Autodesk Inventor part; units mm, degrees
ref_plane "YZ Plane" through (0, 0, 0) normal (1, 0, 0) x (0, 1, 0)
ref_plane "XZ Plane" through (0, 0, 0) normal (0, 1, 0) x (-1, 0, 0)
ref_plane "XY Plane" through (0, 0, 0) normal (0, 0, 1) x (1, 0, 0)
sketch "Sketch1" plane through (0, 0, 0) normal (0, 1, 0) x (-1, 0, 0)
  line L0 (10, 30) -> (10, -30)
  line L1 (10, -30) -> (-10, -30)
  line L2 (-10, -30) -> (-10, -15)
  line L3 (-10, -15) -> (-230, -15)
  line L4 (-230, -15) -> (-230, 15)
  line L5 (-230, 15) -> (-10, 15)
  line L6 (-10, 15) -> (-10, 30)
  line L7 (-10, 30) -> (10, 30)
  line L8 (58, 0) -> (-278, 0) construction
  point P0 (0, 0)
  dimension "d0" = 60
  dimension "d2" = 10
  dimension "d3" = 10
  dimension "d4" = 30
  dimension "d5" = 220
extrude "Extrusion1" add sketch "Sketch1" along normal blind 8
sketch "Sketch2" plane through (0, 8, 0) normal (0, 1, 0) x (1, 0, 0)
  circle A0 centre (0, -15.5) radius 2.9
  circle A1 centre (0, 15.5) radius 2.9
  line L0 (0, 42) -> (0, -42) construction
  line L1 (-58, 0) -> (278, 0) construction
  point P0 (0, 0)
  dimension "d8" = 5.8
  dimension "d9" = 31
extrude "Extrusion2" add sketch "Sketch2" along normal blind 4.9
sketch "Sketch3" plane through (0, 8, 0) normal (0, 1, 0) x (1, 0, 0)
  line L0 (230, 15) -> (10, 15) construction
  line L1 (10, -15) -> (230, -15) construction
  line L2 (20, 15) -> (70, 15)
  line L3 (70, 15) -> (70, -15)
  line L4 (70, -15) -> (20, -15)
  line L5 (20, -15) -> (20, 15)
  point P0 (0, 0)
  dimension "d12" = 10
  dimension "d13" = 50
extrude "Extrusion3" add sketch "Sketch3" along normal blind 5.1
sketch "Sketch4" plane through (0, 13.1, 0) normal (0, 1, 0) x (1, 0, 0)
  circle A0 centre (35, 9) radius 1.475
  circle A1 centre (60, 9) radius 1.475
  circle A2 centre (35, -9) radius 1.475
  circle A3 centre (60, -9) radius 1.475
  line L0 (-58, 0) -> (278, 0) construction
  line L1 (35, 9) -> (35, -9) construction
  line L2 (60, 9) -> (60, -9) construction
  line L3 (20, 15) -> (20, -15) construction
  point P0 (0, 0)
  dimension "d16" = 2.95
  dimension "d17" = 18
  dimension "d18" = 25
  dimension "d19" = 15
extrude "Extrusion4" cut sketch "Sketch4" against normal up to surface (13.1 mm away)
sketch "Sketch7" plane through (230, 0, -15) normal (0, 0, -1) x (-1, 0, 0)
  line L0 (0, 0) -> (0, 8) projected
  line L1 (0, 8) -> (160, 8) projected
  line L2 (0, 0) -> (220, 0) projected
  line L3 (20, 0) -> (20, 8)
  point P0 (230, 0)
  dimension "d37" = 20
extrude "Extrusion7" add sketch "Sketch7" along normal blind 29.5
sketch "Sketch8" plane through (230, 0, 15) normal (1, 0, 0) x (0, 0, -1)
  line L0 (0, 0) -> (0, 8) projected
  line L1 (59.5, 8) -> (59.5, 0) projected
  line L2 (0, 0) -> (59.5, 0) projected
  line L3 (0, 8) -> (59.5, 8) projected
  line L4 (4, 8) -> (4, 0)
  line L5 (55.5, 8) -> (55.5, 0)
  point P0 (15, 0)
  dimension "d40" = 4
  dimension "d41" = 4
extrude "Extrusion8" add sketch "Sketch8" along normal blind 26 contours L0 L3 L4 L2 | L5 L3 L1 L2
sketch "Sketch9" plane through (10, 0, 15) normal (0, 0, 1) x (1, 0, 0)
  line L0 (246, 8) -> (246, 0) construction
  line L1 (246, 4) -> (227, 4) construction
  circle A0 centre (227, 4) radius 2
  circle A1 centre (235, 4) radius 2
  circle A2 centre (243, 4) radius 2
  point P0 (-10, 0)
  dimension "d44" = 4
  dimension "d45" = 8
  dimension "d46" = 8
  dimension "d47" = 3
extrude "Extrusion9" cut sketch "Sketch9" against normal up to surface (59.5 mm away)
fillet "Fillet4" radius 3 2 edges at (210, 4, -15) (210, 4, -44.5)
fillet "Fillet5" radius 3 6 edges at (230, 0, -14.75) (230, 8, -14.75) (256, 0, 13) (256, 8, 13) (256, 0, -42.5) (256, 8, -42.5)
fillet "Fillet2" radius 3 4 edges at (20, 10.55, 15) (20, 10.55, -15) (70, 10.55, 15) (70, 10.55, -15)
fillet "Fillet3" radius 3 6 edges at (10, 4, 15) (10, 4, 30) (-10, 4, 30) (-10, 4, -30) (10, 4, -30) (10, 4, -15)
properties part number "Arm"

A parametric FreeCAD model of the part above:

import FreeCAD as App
import Part
import Sketcher
Q = App.Units.Quantity


def edges_at(feature, points):
    """Names of the edges that pass closest to the given points."""
    edges = feature.Shape.Edges
    near = lambda p: min(range(len(edges)), key=lambda i: edges[i].distToShape(Part.Vertex(*p))[0])
    return sorted({f"Edge{near(p) + 1}" for p in points})

doc = App.newDocument("Part")
params = doc.addObject("Spreadsheet::Sheet", "Params")
for row, (alias, value) in enumerate([
    ("sketch1_width", "220 mm"),
    ("sketch1_height", "60 mm"),
    ("sketch1_height2", "30 mm"),
    ("pad1_length", "8 mm"),
    ("sketch2_diameter", "5.8 mm"),
    ("pad2_length", "4.9 mm"),
    ("sketch3_width", "50 mm"),
    ("sketch3_height", "30 mm"),
    ("pad3_length", "5.1 mm"),
    ("sketch4_diameter", "2.95 mm"),
    ("pocket1_length", "13.1 mm"),
    ("sketch5_width", "20 mm"),
    ("sketch5_height", "8 mm"),
    ("pad4_length", "29.5 mm"),
    ("sketch6_height", "4 mm"),
    ("sketch6_width", "8 mm"),
    ("pad5_length", "26 mm"),
    ("sketch7_diameter", "4 mm"),
    ("pocket2_length", "59.5 mm"),
    ("fillet_radius", "3 mm"),
    ("fillet2_radius", "3 mm"),
    ("fillet3_radius", "3 mm"),
    ("fillet4_radius", "3 mm"),
], start=1):
    params.set(f"A{row}", alias)
    params.set(f"B{row}", "=" + value)
    params.setAlias(f"B{row}", alias)

body = doc.addObject("PartDesign::Body", "Body")

# Sketch on XZ plane
sketch1 = body.newObject("Sketcher::SketchObject", "Sketch")
sketch1.AttachmentSupport = (doc.getObject("XZ_Plane"), [""])
sketch1.MapMode = "FlatFace"
sketch1.addGeometry([
    Part.LineSegment(App.Vector(-10, -30, 0), App.Vector(-10, 30, 0)),  # 0
    Part.LineSegment(App.Vector(-10, 30, 0), App.Vector(10, 30, 0)),  # 1
    Part.LineSegment(App.Vector(10, 30, 0), App.Vector(10, 15, 0)),  # 2
    Part.LineSegment(App.Vector(10, 15, 0), App.Vector(230, 15, 0)),  # 3
    Part.LineSegment(App.Vector(230, 15, 0), App.Vector(230, -15, 0)),  # 4
    Part.LineSegment(App.Vector(230, -15, 0), App.Vector(10, -15, 0)),  # 5
    Part.LineSegment(App.Vector(10, -15, 0), App.Vector(10, -30, 0)),  # 6
    Part.LineSegment(App.Vector(10, -30, 0), App.Vector(-10, -30, 0)),  # 7
], False)
sketch1.addConstraint([
    Sketcher.Constraint("Coincident", 0, 2, 1, 1),
    Sketcher.Constraint("Coincident", 1, 2, 2, 1),
    Sketcher.Constraint("Coincident", 2, 2, 3, 1),
    Sketcher.Constraint("Coincident", 3, 2, 4, 1),
    Sketcher.Constraint("Coincident", 4, 2, 5, 1),
    Sketcher.Constraint("Coincident", 5, 2, 6, 1),
    Sketcher.Constraint("Coincident", 6, 2, 7, 1),
    Sketcher.Constraint("Coincident", 7, 2, 0, 1),
    Sketcher.Constraint("Vertical", 0),
    Sketcher.Constraint("Horizontal", 1),
    Sketcher.Constraint("Vertical", 2),
    Sketcher.Constraint("Horizontal", 3),
    Sketcher.Constraint("Vertical", 4),
    Sketcher.Constraint("Horizontal", 5),
    Sketcher.Constraint("Vertical", 6),
    Sketcher.Constraint("Horizontal", 7),
    Sketcher.Constraint("Symmetric", 0, 2, 6, 2, -1, 1),
    Sketcher.Constraint("Symmetric", 2, 2, 5, 2, -1),
    Sketcher.Constraint("DistanceX", 3, 1, 3, 2, Q("220 mm")),
    Sketcher.Constraint("DistanceY", 0, 1, 0, 2, Q("60 mm")),
    Sketcher.Constraint("DistanceY", 4, 2, 4, 1, Q("30 mm")),
    Sketcher.Constraint("DistanceX", 0, 2, -1, 1, Q("10 mm")),
])
sketch1.setExpression("Constraints[18]", "Params.sketch1_width")
sketch1.setExpression("Constraints[19]", "Params.sketch1_height")
sketch1.setExpression("Constraints[20]", "Params.sketch1_height2")
pad1 = body.newObject("PartDesign::Pad", "Pad")
pad1.Profile = sketch1
pad1.setExpression("Length", "Params.pad1_length")
pad1.Reversed = True

# Sketch on XZ plane
sketch2 = body.newObject("Sketcher::SketchObject", "Sketch001")
sketch2.AttachmentSupport = (doc.getObject("XZ_Plane"), [""])
sketch2.MapMode = "FlatFace"
sketch2.AttachmentOffset = App.Placement(App.Vector(0, 0, -8), App.Rotation())
sketch2.addGeometry([
    Part.Circle(App.Vector(0, 15.5, 0), App.Vector(0, 0, 1), 2.9),
    Part.Circle(App.Vector(0, -15.5, 0), App.Vector(0, 0, 1), 2.9),
], False)
sketch2.addConstraint([
    Sketcher.Constraint("Equal", 0, 1),
    Sketcher.Constraint("Symmetric", 0, 3, 1, 3, -1, 1),
    Sketcher.Constraint("PointOnObject", 0, 3, -2),
    Sketcher.Constraint("Diameter", 0, Q("5.8 mm")),
    Sketcher.Constraint("DistanceY", 1, 3, 0, 3, Q("31 mm")),
])
sketch2.setExpression("Constraints[3]", "Params.sketch2_diameter")
pad2 = body.newObject("PartDesign::Pad", "Pad001")
pad2.Profile = sketch2
pad2.setExpression("Length", "Params.pad2_length")
pad2.Reversed = True

# Sketch on XZ plane
sketch3 = body.newObject("Sketcher::SketchObject", "Sketch002")
sketch3.AttachmentSupport = (doc.getObject("XZ_Plane"), [""])
sketch3.MapMode = "FlatFace"
sketch3.AttachmentOffset = App.Placement(App.Vector(0, 0, -8), App.Rotation())
sketch3.addGeometry([
    Part.LineSegment(App.Vector(70, -15, 0), App.Vector(20, -15, 0)),
    Part.LineSegment(App.Vector(20, -15, 0), App.Vector(20, 15, 0)),
    Part.LineSegment(App.Vector(20, 15, 0), App.Vector(70, 15, 0)),
    Part.LineSegment(App.Vector(70, 15, 0), App.Vector(70, -15, 0)),
], False)
sketch3.addConstraint([
    Sketcher.Constraint("Coincident", 0, 2, 1, 1),
    Sketcher.Constraint("Coincident", 1, 2, 2, 1),
    Sketcher.Constraint("Coincident", 2, 2, 3, 1),
    Sketcher.Constraint("Coincident", 3, 2, 0, 1),
    Sketcher.Constraint("Horizontal", 0),
    Sketcher.Constraint("Vertical", 1),
    Sketcher.Constraint("Horizontal", 2),
    Sketcher.Constraint("Vertical", 3),
    Sketcher.Constraint("DistanceX", 0, 2, 0, 1, Q("50 mm")),
    Sketcher.Constraint("DistanceY", 1, 1, 1, 2, Q("30 mm")),
    Sketcher.Constraint("DistanceX", -1, 1, 0, 2, Q("20 mm")),
    Sketcher.Constraint("DistanceY", 0, 2, -1, 1, Q("15 mm")),
])
sketch3.setExpression("Constraints[8]", "Params.sketch3_width")
sketch3.setExpression("Constraints[9]", "Params.sketch3_height")
pad3 = body.newObject("PartDesign::Pad", "Pad002")
pad3.Profile = sketch3
pad3.setExpression("Length", "Params.pad3_length")
pad3.Reversed = True

# Sketch on XZ plane
sketch4 = body.newObject("Sketcher::SketchObject", "Sketch003")
sketch4.AttachmentSupport = (doc.getObject("XZ_Plane"), [""])
sketch4.MapMode = "FlatFace"
sketch4.AttachmentOffset = App.Placement(App.Vector(0, 0, -13.1), App.Rotation())
sketch4.addGeometry([
    Part.Circle(App.Vector(35, -9, 0), App.Vector(0, 0, 1), 1.475),
    Part.Circle(App.Vector(60, -9, 0), App.Vector(0, 0, 1), 1.475),
    Part.Circle(App.Vector(35, 9, 0), App.Vector(0, 0, 1), 1.475),
    Part.Circle(App.Vector(60, 9, 0), App.Vector(0, 0, 1), 1.475),
], False)
sketch4.addConstraint([
    Sketcher.Constraint("Equal", 0, 1),
    Sketcher.Constraint("Equal", 1, 2),
    Sketcher.Constraint("Equal", 2, 3),
    Sketcher.Constraint("Symmetric", 0, 3, 2, 3, -1),
    Sketcher.Constraint("Symmetric", 1, 3, 3, 3, -1),
    Sketcher.Constraint("Horizontal", 0, 3, 1, 3),
    Sketcher.Constraint("Diameter", 0, Q("2.95 mm")),
    Sketcher.Constraint("DistanceX", 0, 3, 1, 3, Q("25 mm")),
    Sketcher.Constraint("DistanceY", 0, 3, 2, 3, Q("18 mm")),
    Sketcher.Constraint("DistanceX", -1, 1, 0, 3, Q("35 mm")),
])
sketch4.setExpression("Constraints[6]", "Params.sketch4_diameter")
pocket1 = body.newObject("PartDesign::Pocket", "Pocket")
pocket1.Profile = sketch4
pocket1.setExpression("Length", "Params.pocket1_length")
pocket1.Reversed = True

# Sketch on XY plane
sketch5 = body.newObject("Sketcher::SketchObject", "Sketch004")
sketch5.AttachmentSupport = (doc.getObject("XY_Plane"), [""])
sketch5.MapMode = "FlatFace"
sketch5.AttachmentOffset = App.Placement(App.Vector(0, 0, -15), App.Rotation())
sketch5.addGeometry([
    Part.LineSegment(App.Vector(230, 8, 0), App.Vector(230, 0, 0)),
    Part.LineSegment(App.Vector(230, 0, 0), App.Vector(210, 0, 0)),
    Part.LineSegment(App.Vector(210, 0, 0), App.Vector(210, 8, 0)),
    Part.LineSegment(App.Vector(210, 8, 0), App.Vector(230, 8, 0)),
], False)
sketch5.addConstraint([
    Sketcher.Constraint("Coincident", 0, 2, 1, 1),
    Sketcher.Constraint("Coincident", 1, 2, 2, 1),
    Sketcher.Constraint("Coincident", 2, 2, 3, 1),
    Sketcher.Constraint("Coincident", 3, 2, 0, 1),
    Sketcher.Constraint("Vertical", 0),
    Sketcher.Constraint("Horizontal", 1),
    Sketcher.Constraint("Vertical", 2),
    Sketcher.Constraint("Horizontal", 3),
    Sketcher.Constraint("PointOnObject", 0, 2, -1),
    Sketcher.Constraint("DistanceX", 1, 2, 1, 1, Q("20 mm")),
    Sketcher.Constraint("DistanceY", 0, 2, 0, 1, Q("8 mm")),
    Sketcher.Constraint("DistanceX", -1, 1, 0, 2, Q("230 mm")),
])
sketch5.setExpression("Constraints[9]", "Params.sketch5_width")
sketch5.setExpression("Constraints[10]", "Params.sketch5_height")
pad4 = body.newObject("PartDesign::Pad", "Pad003")
pad4.Profile = sketch5
pad4.setExpression("Length", "Params.pad4_length")
pad4.Reversed = True

# Sketch on YZ plane
sketch6 = body.newObject("Sketcher::SketchObject", "Sketch005")
sketch6.AttachmentSupport = (doc.getObject("YZ_Plane"), [""])
sketch6.MapMode = "FlatFace"
sketch6.AttachmentOffset = App.Placement(App.Vector(0, 0, 230), App.Rotation())
sketch6.addGeometry([
    Part.LineSegment(App.Vector(8, 15, 0), App.Vector(0, 15, 0)),  # 0
    Part.LineSegment(App.Vector(0, 15, 0), App.Vector(0, 11, 0)),  # 1
    Part.LineSegment(App.Vector(0, 11, 0), App.Vector(8, 11, 0)),  # 2
    Part.LineSegment(App.Vector(8, 11, 0), App.Vector(8, 15, 0)),  # 3
    Part.LineSegment(App.Vector(8, -40.5, 0), App.Vector(0, -40.5, 0)),  # 4
    Part.LineSegment(App.Vector(0, -40.5, 0), App.Vector(0, -44.5, 0)),  # 5
    Part.LineSegment(App.Vector(0, -44.5, 0), App.Vector(8, -44.5, 0)),  # 6
    Part.LineSegment(App.Vector(8, -44.5, 0), App.Vector(8, -40.5, 0)),  # 7
], False)
sketch6.addConstraint([
    Sketcher.Constraint("Coincident", 0, 2, 1, 1),
    Sketcher.Constraint("Coincident", 1, 2, 2, 1),
    Sketcher.Constraint("Coincident", 2, 2, 3, 1),
    Sketcher.Constraint("Coincident", 3, 2, 0, 1),
    Sketcher.Constraint("Coincident", 4, 2, 5, 1),
    Sketcher.Constraint("Coincident", 5, 2, 6, 1),
    Sketcher.Constraint("Coincident", 6, 2, 7, 1),
    Sketcher.Constraint("Coincident", 7, 2, 4, 1),
    Sketcher.Constraint("Horizontal", 0),
    Sketcher.Constraint("Vertical", 1),
    Sketcher.Constraint("Horizontal", 2),
    Sketcher.Constraint("Vertical", 3),
    Sketcher.Constraint("Horizontal", 4),
    Sketcher.Constraint("Vertical", 5),
    Sketcher.Constraint("Horizontal", 6),
    Sketcher.Constraint("Vertical", 7),
    Sketcher.Constraint("PointOnObject", 0, 2, -2),
    Sketcher.Constraint("PointOnObject", 4, 2, -2),
    Sketcher.Constraint("Vertical", 3, 2, 6, 2),
    Sketcher.Constraint("Equal", 3, 5),
    Sketcher.Constraint("DistanceY", 1, 2, 1, 1, Q("4 mm")),
    Sketcher.Constraint("DistanceX", 0, 2, 0, 1, Q("8 mm")),
    Sketcher.Constraint("DistanceY", -1, 1, 0, 2, Q("15 mm")),
    Sketcher.Constraint("DistanceY", 4, 2, -1, 1, Q("40.5 mm")),
])
sketch6.setExpression("Constraints[20]", "Params.sketch6_height")
sketch6.setExpression("Constraints[21]", "Params.sketch6_width")
pad5 = body.newObject("PartDesign::Pad", "Pad004")
pad5.Profile = sketch6
pad5.setExpression("Length", "Params.pad5_length")

# Sketch on XY plane
sketch7 = body.newObject("Sketcher::SketchObject", "Sketch006")
sketch7.AttachmentSupport = (doc.getObject("XY_Plane"), [""])
sketch7.MapMode = "FlatFace"
sketch7.AttachmentOffset = App.Placement(App.Vector(0, 0, 15), App.Rotation())
sketch7.addGeometry([
    Part.Circle(App.Vector(237, 4, 0), App.Vector(0, 0, 1), 2),
    Part.Circle(App.Vector(245, 4, 0), App.Vector(0, 0, 1), 2),
    Part.Circle(App.Vector(253, 4, 0), App.Vector(0, 0, 1), 2),
], False)
sketch7.addConstraint([
    Sketcher.Constraint("Equal", 0, 1),
    Sketcher.Constraint("Equal", 1, 2),
    Sketcher.Constraint("Horizontal", 0, 3, 1, 3),
    Sketcher.Constraint("Horizontal", 1, 3, 2, 3),
    Sketcher.Constraint("Diameter", 0, Q("4 mm")),
    Sketcher.Constraint("DistanceY", -1, 1, 0, 3, Q("4 mm")),
    Sketcher.Constraint("DistanceX", 0, 3, 1, 3, Q("8 mm")),
    Sketcher.Constraint("DistanceX", 1, 3, 2, 3, Q("8 mm")),
    Sketcher.Constraint("DistanceX", -1, 1, 0, 3, Q("237 mm")),
])
sketch7.setExpression("Constraints[4]", "Params.sketch7_diameter")
pocket2 = body.newObject("PartDesign::Pocket", "Pocket001")
pocket2.Profile = sketch7
pocket2.setExpression("Length", "Params.pocket2_length")
doc.recompute()

fillet = body.newObject("PartDesign::Fillet", "Fillet")
fillet.Base = (pocket2, edges_at(pocket2, [(210, 4, -15), (210, 4, -44.5)]))
fillet.setExpression("Radius", "Params.fillet_radius")
doc.recompute()

fillet2 = body.newObject("PartDesign::Fillet", "Fillet001")
fillet2.Base = (fillet, edges_at(fillet, [
    (230, 0, -14.75),
    (230, 8, -14.75),
    (256, 0, 13),
    (256, 8, 13),
    (256, 0, -42.5),
    (256, 8, -42.5),
]))
fillet2.setExpression("Radius", "Params.fillet2_radius")
doc.recompute()

fillet3 = body.newObject("PartDesign::Fillet", "Fillet002")
fillet3.Base = (fillet2, edges_at(fillet2, [
    (20, 10.55, 15),
    (20, 10.55, -15),
    (70, 10.55, 15),
    (70, 10.55, -15),
]))
fillet3.setExpression("Radius", "Params.fillet3_radius")
doc.recompute()

fillet4 = body.newObject("PartDesign::Fillet", "Fillet003")
fillet4.Base = (fillet3, edges_at(fillet3, [
    (10, 4, 15),
    (10, 4, 30),
    (-10, 4, 30),
    (-10, 4, -30),
    (10, 4, -30),
    (10, 4, -15),
]))
fillet4.setExpression("Radius", "Params.fillet4_radius")

doc.recompute()
